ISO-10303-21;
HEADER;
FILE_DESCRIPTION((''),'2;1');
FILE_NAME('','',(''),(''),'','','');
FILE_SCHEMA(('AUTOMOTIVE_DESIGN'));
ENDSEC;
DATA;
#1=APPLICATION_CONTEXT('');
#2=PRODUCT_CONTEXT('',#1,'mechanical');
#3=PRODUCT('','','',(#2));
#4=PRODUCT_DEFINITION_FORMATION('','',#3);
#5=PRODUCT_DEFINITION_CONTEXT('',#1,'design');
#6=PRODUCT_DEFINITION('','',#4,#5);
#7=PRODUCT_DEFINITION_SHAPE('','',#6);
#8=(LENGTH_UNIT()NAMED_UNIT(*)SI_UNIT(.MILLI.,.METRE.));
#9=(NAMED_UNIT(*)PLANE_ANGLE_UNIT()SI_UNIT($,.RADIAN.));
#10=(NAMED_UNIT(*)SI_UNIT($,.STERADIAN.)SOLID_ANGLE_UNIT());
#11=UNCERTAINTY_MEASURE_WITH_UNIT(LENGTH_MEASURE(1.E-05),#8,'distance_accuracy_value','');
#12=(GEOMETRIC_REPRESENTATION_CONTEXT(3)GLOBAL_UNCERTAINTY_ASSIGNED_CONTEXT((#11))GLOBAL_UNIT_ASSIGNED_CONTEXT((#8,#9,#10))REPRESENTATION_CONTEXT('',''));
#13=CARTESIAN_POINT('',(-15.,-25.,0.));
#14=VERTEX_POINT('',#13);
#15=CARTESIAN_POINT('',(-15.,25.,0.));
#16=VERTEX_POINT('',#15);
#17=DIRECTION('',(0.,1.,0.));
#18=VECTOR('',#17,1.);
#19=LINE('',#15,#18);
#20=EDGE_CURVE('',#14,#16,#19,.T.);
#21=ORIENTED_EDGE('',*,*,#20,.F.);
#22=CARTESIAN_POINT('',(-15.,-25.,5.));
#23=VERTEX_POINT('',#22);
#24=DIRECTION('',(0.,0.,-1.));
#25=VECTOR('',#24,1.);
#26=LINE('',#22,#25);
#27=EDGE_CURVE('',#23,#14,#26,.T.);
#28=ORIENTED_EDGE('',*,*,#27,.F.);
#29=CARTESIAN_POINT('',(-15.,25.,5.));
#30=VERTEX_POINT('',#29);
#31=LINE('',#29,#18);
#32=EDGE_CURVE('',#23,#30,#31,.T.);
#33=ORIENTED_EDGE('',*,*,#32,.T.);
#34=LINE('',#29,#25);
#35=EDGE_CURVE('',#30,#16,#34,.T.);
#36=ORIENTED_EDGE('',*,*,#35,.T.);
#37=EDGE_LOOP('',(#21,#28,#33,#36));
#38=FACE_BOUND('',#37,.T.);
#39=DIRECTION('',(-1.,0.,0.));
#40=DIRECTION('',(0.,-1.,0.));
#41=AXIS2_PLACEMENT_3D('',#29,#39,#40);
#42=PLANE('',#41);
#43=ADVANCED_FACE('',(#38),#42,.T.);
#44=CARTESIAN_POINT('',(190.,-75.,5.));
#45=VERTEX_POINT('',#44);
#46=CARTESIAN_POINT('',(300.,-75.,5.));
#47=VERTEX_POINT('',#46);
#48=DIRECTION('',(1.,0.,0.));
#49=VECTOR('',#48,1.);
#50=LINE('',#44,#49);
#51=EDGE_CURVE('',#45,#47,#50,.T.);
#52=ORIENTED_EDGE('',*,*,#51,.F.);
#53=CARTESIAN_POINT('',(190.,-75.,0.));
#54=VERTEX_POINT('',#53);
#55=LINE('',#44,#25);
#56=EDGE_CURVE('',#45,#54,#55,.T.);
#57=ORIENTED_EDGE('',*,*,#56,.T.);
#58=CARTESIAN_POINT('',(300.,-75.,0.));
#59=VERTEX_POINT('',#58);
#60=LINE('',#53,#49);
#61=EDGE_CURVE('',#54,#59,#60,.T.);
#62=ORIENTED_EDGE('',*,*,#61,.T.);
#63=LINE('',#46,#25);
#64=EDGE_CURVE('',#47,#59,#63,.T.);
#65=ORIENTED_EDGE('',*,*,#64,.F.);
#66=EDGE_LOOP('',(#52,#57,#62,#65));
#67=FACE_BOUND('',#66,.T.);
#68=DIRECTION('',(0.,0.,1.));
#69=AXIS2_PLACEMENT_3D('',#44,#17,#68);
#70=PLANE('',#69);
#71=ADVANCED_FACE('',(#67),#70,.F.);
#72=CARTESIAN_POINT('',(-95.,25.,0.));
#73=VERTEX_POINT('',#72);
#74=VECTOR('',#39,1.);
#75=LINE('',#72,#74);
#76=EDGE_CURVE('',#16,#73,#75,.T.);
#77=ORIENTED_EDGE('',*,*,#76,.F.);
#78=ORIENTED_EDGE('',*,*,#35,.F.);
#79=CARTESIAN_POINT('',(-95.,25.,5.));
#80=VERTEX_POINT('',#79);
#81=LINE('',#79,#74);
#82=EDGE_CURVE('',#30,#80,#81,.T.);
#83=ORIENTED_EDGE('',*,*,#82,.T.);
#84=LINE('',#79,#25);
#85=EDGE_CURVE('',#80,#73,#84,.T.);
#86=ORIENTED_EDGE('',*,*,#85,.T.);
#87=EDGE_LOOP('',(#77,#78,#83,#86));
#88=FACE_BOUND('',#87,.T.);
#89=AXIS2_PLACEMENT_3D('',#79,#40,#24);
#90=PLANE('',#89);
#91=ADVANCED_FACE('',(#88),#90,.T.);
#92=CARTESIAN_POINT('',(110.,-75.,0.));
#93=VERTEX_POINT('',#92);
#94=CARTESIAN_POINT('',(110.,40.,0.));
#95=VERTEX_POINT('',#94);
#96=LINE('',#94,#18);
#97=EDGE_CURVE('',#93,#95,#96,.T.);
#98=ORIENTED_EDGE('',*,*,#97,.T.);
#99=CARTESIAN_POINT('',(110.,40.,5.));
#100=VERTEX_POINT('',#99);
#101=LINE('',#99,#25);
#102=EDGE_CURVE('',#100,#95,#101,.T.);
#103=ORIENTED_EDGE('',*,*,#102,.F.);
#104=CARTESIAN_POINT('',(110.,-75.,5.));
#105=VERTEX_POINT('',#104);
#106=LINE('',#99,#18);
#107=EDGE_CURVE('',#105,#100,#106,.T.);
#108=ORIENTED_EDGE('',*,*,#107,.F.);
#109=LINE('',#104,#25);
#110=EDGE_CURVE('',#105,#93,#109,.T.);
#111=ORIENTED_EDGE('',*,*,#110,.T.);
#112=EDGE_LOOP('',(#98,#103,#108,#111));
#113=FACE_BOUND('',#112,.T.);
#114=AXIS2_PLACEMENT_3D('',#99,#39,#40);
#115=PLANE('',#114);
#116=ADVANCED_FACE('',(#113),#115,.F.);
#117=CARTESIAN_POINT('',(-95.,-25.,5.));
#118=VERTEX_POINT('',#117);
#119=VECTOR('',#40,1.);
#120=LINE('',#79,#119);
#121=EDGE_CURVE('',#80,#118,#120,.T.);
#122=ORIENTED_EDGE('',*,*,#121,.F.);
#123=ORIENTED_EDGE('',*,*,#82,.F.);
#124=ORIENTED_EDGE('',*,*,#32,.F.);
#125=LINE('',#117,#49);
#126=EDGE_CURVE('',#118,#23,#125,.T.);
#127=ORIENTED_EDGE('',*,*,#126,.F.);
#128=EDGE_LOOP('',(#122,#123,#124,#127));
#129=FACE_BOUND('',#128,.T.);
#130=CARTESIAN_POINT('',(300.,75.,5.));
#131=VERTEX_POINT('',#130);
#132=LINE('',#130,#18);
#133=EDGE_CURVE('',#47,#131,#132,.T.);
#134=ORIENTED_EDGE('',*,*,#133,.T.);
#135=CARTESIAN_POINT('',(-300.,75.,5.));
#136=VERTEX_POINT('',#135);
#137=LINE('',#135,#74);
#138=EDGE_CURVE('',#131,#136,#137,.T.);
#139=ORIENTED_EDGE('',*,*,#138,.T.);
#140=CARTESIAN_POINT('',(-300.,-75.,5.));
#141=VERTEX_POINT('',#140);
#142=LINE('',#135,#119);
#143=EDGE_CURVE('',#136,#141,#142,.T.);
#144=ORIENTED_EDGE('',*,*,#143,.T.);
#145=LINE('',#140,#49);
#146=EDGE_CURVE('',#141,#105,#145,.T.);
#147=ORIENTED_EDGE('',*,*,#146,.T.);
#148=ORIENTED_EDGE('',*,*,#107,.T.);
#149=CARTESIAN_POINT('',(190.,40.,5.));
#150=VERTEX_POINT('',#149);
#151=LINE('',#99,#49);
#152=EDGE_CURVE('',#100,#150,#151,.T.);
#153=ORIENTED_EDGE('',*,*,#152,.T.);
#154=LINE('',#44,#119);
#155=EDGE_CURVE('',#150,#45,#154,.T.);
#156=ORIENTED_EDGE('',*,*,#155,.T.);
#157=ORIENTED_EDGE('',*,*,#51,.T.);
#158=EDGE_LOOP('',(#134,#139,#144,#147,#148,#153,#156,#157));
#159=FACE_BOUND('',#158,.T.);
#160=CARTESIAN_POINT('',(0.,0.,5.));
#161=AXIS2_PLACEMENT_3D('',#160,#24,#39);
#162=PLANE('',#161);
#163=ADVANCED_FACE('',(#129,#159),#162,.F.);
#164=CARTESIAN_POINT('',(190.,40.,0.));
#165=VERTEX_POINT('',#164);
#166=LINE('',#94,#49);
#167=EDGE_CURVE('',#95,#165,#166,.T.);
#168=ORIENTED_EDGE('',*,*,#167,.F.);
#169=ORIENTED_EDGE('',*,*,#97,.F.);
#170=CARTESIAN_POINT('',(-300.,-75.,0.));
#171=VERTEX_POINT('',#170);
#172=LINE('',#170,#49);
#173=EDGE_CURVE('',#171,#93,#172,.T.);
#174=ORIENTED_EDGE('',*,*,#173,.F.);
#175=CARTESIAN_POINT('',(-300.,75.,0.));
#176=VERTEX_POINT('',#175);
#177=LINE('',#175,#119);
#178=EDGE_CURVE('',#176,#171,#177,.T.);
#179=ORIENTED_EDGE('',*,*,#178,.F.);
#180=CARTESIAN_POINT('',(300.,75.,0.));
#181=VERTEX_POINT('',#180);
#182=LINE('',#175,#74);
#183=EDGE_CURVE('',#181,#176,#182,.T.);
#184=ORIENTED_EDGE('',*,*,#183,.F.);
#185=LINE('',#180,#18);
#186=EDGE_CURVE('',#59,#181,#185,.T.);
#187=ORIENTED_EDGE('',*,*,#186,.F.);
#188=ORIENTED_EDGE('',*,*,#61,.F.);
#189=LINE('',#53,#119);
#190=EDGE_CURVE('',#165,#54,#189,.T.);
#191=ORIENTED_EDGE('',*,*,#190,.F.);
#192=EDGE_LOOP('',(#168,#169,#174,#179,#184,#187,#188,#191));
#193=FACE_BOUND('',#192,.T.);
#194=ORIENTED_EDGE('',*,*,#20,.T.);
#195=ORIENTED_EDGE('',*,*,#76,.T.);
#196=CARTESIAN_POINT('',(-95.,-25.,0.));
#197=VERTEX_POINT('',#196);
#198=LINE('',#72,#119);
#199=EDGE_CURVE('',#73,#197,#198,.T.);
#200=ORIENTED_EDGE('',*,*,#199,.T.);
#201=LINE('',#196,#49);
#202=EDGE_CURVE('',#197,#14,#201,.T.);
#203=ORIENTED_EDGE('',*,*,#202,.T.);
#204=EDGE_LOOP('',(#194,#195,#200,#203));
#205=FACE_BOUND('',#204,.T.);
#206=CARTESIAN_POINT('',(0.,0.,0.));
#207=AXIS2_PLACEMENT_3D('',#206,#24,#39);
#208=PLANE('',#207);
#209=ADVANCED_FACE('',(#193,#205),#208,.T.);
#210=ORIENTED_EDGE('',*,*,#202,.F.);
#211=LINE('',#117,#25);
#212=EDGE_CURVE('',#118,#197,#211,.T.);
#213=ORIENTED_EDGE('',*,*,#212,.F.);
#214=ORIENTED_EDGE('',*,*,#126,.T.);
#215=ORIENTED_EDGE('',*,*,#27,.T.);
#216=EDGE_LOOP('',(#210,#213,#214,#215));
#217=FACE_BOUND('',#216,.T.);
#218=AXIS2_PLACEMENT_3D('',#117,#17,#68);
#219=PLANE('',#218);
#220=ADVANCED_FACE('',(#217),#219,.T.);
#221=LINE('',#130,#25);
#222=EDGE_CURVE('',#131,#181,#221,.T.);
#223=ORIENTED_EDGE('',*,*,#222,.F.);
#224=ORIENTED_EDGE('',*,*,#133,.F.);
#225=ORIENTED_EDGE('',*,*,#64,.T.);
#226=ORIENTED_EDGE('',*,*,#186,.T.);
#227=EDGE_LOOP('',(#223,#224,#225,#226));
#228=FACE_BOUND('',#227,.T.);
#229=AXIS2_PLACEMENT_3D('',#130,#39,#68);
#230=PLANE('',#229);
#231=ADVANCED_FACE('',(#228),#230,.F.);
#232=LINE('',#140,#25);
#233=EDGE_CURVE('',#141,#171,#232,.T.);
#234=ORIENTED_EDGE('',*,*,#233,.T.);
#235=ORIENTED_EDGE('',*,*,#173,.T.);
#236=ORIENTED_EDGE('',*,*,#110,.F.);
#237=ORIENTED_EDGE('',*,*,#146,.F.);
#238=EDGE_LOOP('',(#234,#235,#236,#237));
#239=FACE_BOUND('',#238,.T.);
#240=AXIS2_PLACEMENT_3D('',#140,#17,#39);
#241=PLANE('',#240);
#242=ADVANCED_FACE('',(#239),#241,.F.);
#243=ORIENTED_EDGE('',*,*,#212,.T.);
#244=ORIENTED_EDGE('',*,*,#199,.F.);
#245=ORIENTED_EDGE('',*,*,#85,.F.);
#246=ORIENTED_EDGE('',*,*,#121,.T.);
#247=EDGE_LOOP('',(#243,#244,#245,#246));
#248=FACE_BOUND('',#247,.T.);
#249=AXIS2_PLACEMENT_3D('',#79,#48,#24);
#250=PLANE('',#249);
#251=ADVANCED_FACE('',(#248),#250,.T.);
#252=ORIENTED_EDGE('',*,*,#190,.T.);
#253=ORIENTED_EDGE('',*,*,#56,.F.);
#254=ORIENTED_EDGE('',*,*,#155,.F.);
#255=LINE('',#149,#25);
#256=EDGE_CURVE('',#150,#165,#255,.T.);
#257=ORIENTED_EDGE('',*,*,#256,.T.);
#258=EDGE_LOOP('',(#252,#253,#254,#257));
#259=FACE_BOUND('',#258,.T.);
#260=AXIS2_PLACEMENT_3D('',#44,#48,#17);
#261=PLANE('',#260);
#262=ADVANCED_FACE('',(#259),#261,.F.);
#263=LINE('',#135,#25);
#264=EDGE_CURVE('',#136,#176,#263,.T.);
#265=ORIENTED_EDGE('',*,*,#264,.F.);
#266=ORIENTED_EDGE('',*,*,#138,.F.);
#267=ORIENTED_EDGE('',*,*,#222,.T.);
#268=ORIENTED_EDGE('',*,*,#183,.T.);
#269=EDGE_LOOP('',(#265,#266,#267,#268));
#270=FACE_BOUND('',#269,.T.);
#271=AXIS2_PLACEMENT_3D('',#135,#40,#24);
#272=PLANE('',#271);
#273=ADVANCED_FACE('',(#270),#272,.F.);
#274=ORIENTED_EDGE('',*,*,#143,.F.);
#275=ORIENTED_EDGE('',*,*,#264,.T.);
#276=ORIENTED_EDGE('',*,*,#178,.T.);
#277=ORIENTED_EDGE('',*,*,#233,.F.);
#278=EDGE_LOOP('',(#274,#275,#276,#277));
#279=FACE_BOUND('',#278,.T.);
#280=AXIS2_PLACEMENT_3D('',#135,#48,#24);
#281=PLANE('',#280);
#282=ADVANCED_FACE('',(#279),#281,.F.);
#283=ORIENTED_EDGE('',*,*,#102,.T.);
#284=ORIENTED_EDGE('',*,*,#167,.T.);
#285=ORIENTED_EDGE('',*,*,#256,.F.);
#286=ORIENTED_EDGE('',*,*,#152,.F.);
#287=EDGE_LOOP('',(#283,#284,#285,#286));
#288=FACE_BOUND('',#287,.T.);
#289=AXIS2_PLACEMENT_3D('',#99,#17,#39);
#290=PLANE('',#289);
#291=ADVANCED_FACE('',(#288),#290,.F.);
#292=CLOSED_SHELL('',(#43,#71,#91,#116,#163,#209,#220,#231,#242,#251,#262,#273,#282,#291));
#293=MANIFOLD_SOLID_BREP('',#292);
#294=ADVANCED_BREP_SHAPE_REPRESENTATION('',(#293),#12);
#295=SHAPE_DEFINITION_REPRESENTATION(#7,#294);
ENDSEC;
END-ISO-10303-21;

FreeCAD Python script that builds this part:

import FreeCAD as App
import Part
import Sketcher
from FreeCAD import Vector
Q = App.Units.Quantity

doc = App.newDocument("Part")
params = doc.addObject("Spreadsheet::Sheet", "Params")
for row, (alias, value) in enumerate([
    ("sketch1_width", "600 mm"),
    ("sketch1_width2", "410 mm"),
    ("sketch1_width3", "80 mm"),
    ("sketch1_height", "150 mm"),
    ("sketch1_height2", "115 mm"),
    ("pad1_length", "5 mm"),
], start=1):
    params.set(f"A{row}", alias)
    params.set(f"B{row}", "=" + value)
    params.setAlias(f"B{row}", alias)

body = doc.addObject("PartDesign::Body", "Body")

# Sketch on XY plane
sketch1 = doc.addObject("Sketcher::SketchObject", "Sketch")
body.addObject(sketch1)
sketch1.AttachmentSupport = (doc.XY_Plane, [""])
sketch1.MapMode = "FlatFace"
sketch1.addGeometry([
    Part.LineSegment(Vector(300, 75, 0), Vector(-300, 75, 0)),  # 0
    Part.LineSegment(Vector(-300, 75, 0), Vector(-300, -75, 0)),  # 1
    Part.LineSegment(Vector(-300, -75, 0), Vector(110, -75, 0)),  # 2
    Part.LineSegment(Vector(110, -75, 0), Vector(110, 40, 0)),  # 3
    Part.LineSegment(Vector(110, 40, 0), Vector(190, 40, 0)),  # 4
    Part.LineSegment(Vector(190, 40, 0), Vector(190, -75, 0)),  # 5
    Part.LineSegment(Vector(190, -75, 0), Vector(300, -75, 0)),  # 6
    Part.LineSegment(Vector(300, -75, 0), Vector(300, 75, 0)),  # 7
    Part.LineSegment(Vector(-95, -25, 0), Vector(-95, 25, 0)),  # 8
    Part.LineSegment(Vector(-95, 25, 0), Vector(-15, 25, 0)),  # 9
    Part.LineSegment(Vector(-15, 25, 0), Vector(-15, -25, 0)),  # 10
    Part.LineSegment(Vector(-15, -25, 0), Vector(-95, -25, 0)),  # 11
], False)
sketch1.addConstraint([
    Sketcher.Constraint("Coincident", 0, 2, 1, 1),
    Sketcher.Constraint("Coincident", 1, 2, 2, 1),
    Sketcher.Constraint("Coincident", 2, 2, 3, 1),
    Sketcher.Constraint("Coincident", 3, 2, 4, 1),
    Sketcher.Constraint("Coincident", 4, 2, 5, 1),
    Sketcher.Constraint("Coincident", 5, 2, 6, 1),
    Sketcher.Constraint("Coincident", 6, 2, 7, 1),
    Sketcher.Constraint("Coincident", 7, 2, 0, 1),
    Sketcher.Constraint("Coincident", 8, 2, 9, 1),
    Sketcher.Constraint("Coincident", 9, 2, 10, 1),
    Sketcher.Constraint("Coincident", 10, 2, 11, 1),
    Sketcher.Constraint("Coincident", 11, 2, 8, 1),
    Sketcher.Constraint("Horizontal", 0),
    Sketcher.Constraint("Vertical", 1),
    Sketcher.Constraint("Horizontal", 2),
    Sketcher.Constraint("Vertical", 3),
    Sketcher.Constraint("Horizontal", 4),
    Sketcher.Constraint("Vertical", 5),
    Sketcher.Constraint("Horizontal", 6),
    Sketcher.Constraint("Vertical", 7),
    Sketcher.Constraint("Vertical", 8),
    Sketcher.Constraint("Horizontal", 9),
    Sketcher.Constraint("Vertical", 10),
    Sketcher.Constraint("Horizontal", 11),
    Sketcher.Constraint("Symmetric", 0, 2, 6, 2, -1, 1),
    Sketcher.Constraint("Horizontal", 2, 2, 5, 2),
    Sketcher.Constraint("Equal", 4, 9),
    Sketcher.Constraint("DistanceX", 0, 2, 0, 1, Q("600 mm")),
    Sketcher.Constraint("DistanceX", 2, 1, 2, 2, Q("410 mm")),
    Sketcher.Constraint("DistanceX", 4, 1, 4, 2, Q("80 mm")),
    Sketcher.Constraint("DistanceY", 1, 2, 1, 1, Q("150 mm")),
    Sketcher.Constraint("DistanceY", 3, 1, 3, 2, Q("115 mm")),
    Sketcher.Constraint("DistanceY", 8, 1, 8, 2, Q("50 mm")),
    Sketcher.Constraint("DistanceX", 8, 2, -1, 1, Q("95 mm")),
    Sketcher.Constraint("DistanceY", -1, 1, 8, 2, Q("25 mm")),
])
sketch1.setExpression("Constraints[27]", "Params.sketch1_width")
sketch1.setExpression("Constraints[28]", "Params.sketch1_width2")
sketch1.setExpression("Constraints[29]", "Params.sketch1_width3")
sketch1.setExpression("Constraints[30]", "Params.sketch1_height")
sketch1.setExpression("Constraints[31]", "Params.sketch1_height2")
pad1 = doc.addObject("PartDesign::Pad", "Pad")
body.addObject(pad1)
pad1.Profile = sketch1
pad1.setExpression("Length", "Params.pad1_length")

doc.recompute()
